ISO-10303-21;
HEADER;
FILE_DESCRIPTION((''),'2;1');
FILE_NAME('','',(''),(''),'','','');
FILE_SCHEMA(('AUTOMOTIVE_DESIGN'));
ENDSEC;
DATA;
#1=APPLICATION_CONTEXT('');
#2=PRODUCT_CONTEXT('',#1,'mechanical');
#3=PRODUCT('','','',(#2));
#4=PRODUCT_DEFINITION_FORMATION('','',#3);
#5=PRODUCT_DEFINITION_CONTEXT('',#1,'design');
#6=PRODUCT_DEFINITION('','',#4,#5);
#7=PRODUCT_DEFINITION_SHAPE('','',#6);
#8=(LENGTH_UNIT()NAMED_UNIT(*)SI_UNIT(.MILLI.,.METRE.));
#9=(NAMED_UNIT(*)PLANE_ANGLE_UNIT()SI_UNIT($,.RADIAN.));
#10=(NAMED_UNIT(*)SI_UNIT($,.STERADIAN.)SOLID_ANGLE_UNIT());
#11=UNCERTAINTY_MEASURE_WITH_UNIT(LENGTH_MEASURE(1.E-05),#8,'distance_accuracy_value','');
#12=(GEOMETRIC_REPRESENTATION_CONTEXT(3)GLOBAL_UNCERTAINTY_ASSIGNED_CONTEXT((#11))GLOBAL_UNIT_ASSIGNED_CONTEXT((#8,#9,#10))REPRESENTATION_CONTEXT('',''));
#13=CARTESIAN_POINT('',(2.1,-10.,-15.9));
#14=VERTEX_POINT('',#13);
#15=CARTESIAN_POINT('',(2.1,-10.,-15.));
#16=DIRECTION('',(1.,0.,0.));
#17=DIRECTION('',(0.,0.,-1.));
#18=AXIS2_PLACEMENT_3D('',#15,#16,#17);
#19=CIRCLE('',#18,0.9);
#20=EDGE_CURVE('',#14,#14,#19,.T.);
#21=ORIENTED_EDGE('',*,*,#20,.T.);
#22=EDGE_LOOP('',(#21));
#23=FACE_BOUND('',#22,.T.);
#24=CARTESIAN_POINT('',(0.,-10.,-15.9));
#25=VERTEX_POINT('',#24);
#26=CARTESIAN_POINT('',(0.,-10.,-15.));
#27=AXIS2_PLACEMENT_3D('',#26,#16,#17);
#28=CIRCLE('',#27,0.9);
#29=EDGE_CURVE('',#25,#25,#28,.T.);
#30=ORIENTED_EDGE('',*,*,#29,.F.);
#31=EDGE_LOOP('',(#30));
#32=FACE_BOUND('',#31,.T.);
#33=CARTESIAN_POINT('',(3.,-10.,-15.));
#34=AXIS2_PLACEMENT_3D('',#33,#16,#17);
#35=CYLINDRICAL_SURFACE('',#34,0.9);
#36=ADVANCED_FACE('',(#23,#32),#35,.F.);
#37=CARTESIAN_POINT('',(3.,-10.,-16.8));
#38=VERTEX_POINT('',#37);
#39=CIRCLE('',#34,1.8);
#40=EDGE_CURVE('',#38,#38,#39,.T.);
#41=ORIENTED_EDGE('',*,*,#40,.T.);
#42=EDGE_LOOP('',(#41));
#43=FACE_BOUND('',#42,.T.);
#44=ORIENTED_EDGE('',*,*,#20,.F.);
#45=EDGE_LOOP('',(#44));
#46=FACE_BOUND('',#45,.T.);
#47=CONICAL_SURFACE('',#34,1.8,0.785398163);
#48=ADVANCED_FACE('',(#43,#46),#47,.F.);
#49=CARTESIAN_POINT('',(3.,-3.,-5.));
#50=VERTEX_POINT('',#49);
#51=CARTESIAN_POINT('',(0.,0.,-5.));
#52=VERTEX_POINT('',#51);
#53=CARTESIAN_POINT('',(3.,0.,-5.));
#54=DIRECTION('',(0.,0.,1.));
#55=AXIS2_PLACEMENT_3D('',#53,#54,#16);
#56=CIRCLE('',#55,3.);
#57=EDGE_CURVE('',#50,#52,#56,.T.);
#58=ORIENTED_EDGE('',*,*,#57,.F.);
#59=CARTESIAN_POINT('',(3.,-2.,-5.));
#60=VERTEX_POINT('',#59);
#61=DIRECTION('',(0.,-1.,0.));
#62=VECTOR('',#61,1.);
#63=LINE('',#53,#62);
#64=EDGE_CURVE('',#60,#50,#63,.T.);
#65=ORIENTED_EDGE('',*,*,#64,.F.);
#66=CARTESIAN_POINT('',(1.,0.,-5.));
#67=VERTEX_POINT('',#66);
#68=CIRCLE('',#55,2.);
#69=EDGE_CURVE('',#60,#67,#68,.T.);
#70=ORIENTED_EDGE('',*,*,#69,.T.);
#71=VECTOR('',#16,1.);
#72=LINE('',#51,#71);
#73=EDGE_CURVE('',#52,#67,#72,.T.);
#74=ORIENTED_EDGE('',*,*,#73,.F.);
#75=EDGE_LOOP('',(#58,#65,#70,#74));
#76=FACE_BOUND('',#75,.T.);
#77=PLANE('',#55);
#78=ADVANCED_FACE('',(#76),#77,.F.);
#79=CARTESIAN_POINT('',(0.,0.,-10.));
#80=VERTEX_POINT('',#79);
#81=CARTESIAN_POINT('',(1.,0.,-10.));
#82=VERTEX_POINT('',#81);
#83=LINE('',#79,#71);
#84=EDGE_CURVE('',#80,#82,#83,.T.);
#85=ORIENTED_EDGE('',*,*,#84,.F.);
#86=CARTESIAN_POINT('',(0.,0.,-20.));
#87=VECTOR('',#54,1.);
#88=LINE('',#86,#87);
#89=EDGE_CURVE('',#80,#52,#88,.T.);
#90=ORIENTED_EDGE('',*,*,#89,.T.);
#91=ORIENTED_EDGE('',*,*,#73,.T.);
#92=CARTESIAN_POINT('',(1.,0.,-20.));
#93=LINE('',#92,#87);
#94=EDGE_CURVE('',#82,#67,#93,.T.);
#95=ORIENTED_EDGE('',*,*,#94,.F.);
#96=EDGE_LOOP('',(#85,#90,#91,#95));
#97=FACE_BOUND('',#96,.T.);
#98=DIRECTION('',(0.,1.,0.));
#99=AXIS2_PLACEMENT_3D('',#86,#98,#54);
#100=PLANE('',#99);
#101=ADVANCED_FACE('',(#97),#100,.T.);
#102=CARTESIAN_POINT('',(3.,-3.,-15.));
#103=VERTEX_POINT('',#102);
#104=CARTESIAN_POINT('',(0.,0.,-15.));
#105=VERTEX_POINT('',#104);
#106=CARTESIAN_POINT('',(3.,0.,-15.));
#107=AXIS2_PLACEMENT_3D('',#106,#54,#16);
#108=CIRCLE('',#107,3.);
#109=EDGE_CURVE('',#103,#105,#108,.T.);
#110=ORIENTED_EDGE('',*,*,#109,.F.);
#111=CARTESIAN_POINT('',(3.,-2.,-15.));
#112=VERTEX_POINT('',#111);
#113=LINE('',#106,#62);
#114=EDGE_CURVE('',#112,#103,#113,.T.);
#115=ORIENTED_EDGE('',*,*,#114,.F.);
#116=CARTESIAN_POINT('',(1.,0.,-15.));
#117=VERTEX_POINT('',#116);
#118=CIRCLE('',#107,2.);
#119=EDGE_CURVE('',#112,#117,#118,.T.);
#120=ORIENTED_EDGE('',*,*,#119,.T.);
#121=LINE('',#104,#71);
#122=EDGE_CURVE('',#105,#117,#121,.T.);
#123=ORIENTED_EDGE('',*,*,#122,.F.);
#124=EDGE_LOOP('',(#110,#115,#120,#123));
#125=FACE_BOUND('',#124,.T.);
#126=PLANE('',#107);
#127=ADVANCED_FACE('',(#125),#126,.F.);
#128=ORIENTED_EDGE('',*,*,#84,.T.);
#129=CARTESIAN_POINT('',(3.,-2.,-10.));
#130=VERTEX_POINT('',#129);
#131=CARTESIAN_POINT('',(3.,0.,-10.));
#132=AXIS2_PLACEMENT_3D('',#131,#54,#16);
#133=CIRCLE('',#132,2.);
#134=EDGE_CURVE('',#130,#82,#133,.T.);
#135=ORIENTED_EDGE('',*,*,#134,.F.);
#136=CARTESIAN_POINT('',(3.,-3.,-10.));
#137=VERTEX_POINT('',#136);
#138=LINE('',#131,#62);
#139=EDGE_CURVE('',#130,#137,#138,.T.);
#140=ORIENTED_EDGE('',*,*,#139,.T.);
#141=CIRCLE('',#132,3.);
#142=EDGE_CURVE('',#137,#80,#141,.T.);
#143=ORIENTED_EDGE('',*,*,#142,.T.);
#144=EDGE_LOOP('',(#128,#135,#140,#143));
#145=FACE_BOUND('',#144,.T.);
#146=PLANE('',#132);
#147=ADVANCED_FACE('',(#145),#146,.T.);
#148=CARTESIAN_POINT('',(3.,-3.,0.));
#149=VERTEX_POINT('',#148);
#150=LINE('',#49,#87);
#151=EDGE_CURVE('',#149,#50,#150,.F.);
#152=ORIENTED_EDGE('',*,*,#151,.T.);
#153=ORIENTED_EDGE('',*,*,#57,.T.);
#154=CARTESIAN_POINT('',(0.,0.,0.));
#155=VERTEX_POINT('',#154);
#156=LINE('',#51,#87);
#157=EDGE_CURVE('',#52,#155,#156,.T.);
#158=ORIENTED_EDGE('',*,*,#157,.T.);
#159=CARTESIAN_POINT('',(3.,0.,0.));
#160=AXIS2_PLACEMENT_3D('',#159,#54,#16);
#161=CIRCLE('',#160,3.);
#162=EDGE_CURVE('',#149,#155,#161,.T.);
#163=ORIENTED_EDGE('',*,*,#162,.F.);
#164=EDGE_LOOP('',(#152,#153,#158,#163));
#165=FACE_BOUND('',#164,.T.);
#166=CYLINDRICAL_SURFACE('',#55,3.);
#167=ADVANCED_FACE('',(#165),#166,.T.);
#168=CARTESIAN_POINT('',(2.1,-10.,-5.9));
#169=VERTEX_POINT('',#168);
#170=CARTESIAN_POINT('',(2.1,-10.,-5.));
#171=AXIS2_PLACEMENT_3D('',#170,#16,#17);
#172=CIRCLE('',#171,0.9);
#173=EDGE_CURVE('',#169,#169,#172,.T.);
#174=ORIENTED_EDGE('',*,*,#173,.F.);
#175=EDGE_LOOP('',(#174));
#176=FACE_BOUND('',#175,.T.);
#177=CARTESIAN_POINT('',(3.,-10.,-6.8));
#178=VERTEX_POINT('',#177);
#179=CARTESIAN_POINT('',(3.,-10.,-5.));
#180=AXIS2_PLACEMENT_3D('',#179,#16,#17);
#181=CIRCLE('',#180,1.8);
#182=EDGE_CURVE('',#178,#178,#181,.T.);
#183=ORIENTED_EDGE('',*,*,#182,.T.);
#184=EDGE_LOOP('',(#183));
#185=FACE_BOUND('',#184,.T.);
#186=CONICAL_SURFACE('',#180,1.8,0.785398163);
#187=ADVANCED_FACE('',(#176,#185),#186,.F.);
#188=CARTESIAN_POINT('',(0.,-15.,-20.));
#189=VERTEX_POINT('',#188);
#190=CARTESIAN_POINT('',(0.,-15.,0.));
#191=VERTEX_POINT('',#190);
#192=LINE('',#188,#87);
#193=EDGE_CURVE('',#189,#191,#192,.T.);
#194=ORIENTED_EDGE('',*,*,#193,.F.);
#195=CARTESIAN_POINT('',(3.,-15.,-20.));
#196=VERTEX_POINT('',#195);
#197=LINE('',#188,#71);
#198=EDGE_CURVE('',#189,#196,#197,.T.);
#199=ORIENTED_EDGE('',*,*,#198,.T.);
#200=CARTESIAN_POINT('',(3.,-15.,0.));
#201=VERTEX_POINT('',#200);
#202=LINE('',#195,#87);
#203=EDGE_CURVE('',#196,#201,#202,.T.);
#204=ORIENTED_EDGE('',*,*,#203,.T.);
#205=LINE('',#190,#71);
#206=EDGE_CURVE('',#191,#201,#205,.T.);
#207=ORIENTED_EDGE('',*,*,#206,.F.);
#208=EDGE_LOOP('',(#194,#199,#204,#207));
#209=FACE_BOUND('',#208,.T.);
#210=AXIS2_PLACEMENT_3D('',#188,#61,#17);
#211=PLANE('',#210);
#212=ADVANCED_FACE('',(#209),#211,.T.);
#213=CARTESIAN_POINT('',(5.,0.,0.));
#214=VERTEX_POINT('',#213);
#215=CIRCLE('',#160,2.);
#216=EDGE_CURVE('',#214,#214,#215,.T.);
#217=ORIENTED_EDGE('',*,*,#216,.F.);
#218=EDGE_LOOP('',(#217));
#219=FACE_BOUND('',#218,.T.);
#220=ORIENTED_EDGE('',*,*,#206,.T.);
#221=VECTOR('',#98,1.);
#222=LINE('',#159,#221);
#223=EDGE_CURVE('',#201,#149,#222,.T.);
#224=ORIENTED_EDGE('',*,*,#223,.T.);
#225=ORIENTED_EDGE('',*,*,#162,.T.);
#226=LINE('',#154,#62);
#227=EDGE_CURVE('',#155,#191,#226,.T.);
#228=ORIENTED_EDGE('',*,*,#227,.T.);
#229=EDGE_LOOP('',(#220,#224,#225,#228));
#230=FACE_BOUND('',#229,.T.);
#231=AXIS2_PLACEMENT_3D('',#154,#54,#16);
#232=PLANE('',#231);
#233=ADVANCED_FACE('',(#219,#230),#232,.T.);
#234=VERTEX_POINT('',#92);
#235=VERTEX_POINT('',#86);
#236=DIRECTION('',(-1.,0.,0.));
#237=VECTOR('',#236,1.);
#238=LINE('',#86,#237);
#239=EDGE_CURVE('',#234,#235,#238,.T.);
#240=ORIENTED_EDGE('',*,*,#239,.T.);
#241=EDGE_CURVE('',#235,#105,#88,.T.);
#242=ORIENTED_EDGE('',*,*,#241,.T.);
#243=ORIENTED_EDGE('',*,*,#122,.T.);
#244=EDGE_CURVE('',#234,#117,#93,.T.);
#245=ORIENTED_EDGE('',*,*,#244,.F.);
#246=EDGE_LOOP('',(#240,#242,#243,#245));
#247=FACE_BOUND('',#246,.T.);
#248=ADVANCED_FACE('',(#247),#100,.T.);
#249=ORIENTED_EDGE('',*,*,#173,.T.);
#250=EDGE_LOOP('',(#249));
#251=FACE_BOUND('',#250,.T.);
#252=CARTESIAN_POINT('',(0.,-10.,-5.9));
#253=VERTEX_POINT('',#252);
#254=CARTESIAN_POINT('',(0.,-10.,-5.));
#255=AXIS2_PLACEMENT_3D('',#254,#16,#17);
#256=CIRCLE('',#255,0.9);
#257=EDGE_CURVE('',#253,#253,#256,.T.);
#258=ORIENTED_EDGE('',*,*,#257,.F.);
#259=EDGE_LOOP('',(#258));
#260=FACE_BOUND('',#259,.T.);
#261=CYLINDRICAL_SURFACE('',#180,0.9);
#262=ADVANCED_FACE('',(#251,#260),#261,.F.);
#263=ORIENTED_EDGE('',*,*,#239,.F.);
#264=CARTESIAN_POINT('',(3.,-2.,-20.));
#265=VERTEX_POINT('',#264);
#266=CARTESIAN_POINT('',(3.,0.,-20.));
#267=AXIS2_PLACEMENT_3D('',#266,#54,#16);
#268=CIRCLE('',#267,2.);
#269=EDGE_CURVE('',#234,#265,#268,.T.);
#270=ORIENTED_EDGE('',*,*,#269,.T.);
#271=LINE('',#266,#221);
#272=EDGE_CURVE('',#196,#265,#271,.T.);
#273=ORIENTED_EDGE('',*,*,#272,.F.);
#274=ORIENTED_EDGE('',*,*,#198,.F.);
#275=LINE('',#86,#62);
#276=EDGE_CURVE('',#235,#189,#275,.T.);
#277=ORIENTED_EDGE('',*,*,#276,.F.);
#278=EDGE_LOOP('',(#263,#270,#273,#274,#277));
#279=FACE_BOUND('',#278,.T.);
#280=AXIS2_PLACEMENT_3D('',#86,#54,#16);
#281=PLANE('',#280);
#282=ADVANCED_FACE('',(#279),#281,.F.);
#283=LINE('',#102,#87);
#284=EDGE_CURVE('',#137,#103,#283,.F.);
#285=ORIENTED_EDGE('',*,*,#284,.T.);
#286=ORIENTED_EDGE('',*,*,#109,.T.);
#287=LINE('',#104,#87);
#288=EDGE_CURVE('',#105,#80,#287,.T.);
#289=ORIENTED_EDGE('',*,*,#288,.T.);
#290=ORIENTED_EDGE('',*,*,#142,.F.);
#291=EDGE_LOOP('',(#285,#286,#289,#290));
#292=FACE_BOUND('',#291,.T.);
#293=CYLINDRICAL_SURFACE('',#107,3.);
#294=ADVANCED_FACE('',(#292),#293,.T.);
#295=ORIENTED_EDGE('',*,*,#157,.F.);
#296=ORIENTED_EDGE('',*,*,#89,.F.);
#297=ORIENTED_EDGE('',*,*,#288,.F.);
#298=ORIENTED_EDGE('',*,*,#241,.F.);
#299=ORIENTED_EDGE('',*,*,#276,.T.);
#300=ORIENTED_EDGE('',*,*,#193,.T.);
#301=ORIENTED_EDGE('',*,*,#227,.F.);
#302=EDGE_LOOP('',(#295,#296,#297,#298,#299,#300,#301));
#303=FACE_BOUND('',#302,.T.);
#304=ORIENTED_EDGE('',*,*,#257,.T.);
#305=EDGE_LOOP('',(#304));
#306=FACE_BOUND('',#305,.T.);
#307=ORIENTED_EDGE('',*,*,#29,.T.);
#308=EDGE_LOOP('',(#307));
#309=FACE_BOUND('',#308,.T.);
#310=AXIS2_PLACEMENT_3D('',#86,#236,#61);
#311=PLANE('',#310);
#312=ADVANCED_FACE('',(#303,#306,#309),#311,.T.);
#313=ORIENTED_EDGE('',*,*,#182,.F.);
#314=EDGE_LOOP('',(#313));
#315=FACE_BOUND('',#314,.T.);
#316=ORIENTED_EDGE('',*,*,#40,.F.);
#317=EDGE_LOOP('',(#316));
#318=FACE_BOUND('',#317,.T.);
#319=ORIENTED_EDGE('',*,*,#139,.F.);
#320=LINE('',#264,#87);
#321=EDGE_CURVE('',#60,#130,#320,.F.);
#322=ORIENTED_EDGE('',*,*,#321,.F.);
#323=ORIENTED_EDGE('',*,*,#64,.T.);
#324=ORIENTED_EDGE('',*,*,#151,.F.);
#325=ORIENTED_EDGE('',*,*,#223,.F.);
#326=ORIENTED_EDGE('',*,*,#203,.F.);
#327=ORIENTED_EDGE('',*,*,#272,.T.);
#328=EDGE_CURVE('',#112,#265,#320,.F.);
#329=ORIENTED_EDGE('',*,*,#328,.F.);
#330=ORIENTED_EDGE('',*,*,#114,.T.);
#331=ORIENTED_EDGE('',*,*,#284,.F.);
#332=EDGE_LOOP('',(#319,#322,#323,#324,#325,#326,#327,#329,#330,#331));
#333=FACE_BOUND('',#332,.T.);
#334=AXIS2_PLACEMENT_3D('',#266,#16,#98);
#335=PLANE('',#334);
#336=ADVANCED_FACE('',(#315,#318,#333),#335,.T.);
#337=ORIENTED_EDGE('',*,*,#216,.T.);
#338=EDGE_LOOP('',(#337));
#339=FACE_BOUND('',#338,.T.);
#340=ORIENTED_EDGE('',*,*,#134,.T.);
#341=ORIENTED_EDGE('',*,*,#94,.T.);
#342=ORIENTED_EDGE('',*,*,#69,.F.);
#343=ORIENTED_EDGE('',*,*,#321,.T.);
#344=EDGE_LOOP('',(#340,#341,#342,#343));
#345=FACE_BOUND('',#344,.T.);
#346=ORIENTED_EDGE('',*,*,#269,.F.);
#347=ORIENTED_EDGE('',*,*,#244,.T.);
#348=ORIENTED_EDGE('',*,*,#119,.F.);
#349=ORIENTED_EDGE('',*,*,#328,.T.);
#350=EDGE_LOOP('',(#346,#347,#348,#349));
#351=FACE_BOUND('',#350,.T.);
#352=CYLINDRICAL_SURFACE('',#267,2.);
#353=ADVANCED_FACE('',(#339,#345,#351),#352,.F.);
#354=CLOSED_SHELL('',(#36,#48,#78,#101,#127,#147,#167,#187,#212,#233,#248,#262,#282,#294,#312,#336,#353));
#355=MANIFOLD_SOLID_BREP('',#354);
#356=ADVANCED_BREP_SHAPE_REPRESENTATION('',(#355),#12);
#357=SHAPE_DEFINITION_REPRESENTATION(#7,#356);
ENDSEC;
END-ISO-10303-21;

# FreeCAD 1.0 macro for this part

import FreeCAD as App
import Part
import Sketcher
from FreeCAD import Vector
Q = App.Units.Quantity


def add_polygon(sketch, points):
    """Adds a closed chain of lines whose ends are joined by coincident constraints."""
    first, n = sketch.GeometryCount, len(points)
    for a, b in zip(points, points[1:] + points[:1]):
        sketch.addGeometry(Part.LineSegment(App.Vector(*a, 0), App.Vector(*b, 0)), False)
    for i in range(n):
        sketch.addConstraint(Sketcher.Constraint("Coincident", first + i, 2, first + (i + 1) % n, 1))

doc = App.newDocument("Part")
body = doc.addObject("PartDesign::Body", "Body")

# Sketch on XY plane
sketch1 = body.newObject("Sketcher::SketchObject", "Sketch")
sketch1.AttachmentSupport = (doc.getObject("XY_Plane"), [""])
sketch1.MapMode = "FlatFace"
add_polygon(sketch1, [(0, 0), (0, -15), (3, -15), (3, 0)])  # lines 0-3
sketch1.addConstraint(Sketcher.Constraint("Vertical", 0))
sketch1.addConstraint(Sketcher.Constraint("Horizontal", 1))
sketch1.addConstraint(Sketcher.Constraint("Vertical", 2))
sketch1.addConstraint(Sketcher.Constraint("Horizontal", 3))
sketch1.addConstraint(Sketcher.Constraint("Coincident", 3, 2, -1, 1))
sketch1.addConstraint(Sketcher.Constraint("DistanceX", 1, 1, 1, 2, Q("3 mm")))
sketch1.addConstraint(Sketcher.Constraint("DistanceY", 0, 2, 0, 1, Q("15 mm")))
pad1 = body.newObject("PartDesign::Pad", "Pad")
pad1.Profile = sketch1
pad1.Length = 20
pad1.Reversed = True

# Sketch on XY plane
sketch2 = body.newObject("Sketcher::SketchObject", "Sketch001")
sketch2.AttachmentSupport = (doc.getObject("XY_Plane"), [""])
sketch2.MapMode = "FlatFace"
sketch2.addGeometry(Part.Circle(Vector(3, 0, 0), Vector(0, 0, 1), 3), False)
sketch2.addConstraint(Sketcher.Constraint("PointOnObject", 0, 3, -1))
sketch2.addConstraint(Sketcher.Constraint("Diameter", 0, Q("6 mm")))
sketch2.addConstraint(Sketcher.Constraint("DistanceX", -1, 1, 0, 3, Q("3 mm")))
pad2 = body.newObject("PartDesign::Pad", "Pad001")
pad2.Profile = sketch2
pad2.Length = 5
pad2.Reversed = True
doc.recompute()

linearpattern = body.newObject("PartDesign::LinearPattern", "LinearPattern")
linearpattern.Originals = [pad2]
linearpattern.Direction = (doc.getObject("Z_Axis"), [""])
linearpattern.Mode = "offset"
linearpattern.Offset = 10
linearpattern.Occurrences = 2
linearpattern.Reversed = True
body.Tip = linearpattern

# Sketch on XY plane
sketch3 = body.newObject("Sketcher::SketchObject", "Sketch002")
sketch3.AttachmentSupport = (doc.getObject("XY_Plane"), [""])
sketch3.MapMode = "FlatFace"
sketch3.addGeometry(Part.Circle(Vector(3, 0, 0), Vector(0, 0, 1), 2), False)
sketch3.addConstraint(Sketcher.Constraint("PointOnObject", 0, 3, -1))
sketch3.addConstraint(Sketcher.Constraint("Diameter", 0, Q("4 mm")))
sketch3.addConstraint(Sketcher.Constraint("DistanceX", -1, 1, 0, 3, Q("3 mm")))
pocket1 = body.newObject("PartDesign::Pocket", "Pocket")
pocket1.Profile = sketch3
pocket1.Type = "ThroughAll"
pocket1.Midplane = True

# Sketch on YZ plane
sketch4 = body.newObject("Sketcher::SketchObject", "Sketch003")
sketch4.AttachmentSupport = (doc.getObject("YZ_Plane"), [""])
sketch4.MapMode = "FlatFace"
sketch4.AttachmentOffset = App.Placement(Vector(0, 0, 3), App.Rotation())
sketch4.addGeometry(Part.Circle(Vector(-10, -5, 0), Vector(0, 0, 1), 0.9), False)
sketch4.addGeometry(Part.Circle(Vector(-10, -15, 0), Vector(0, 0, 1), 0.9), False)
sketch4.addConstraint(Sketcher.Constraint("Equal", 0, 1))
sketch4.addConstraint(Sketcher.Constraint("Vertical", 0, 3, 1, 3))
sketch4.addConstraint(Sketcher.Constraint("Diameter", 0, Q("1.8 mm")))
sketch4.addConstraint(Sketcher.Constraint("DistanceX", 0, 3, -1, 1, Q("10 mm")))
sketch4.addConstraint(Sketcher.Constraint("DistanceY", 0, 3, -1, 1, Q("5 mm")))
sketch4.addConstraint(Sketcher.Constraint("DistanceY", 1, 3, -1, 1, Q("15 mm")))
doc.recompute()
hole = body.newObject("PartDesign::Hole", "Hole")
hole.Profile = sketch4
hole.ThreadType = "None"
hole.Diameter = 1.8
hole.DepthType = "Dimension"
hole.Depth = 3
hole.DrillPoint = "Angled"
hole.DrillPointAngle = 118
hole.HoleCutType = "Countersink"
hole.HoleCutDiameter = 3.6
hole.HoleCutCountersinkAngle = 90

doc.recompute()
